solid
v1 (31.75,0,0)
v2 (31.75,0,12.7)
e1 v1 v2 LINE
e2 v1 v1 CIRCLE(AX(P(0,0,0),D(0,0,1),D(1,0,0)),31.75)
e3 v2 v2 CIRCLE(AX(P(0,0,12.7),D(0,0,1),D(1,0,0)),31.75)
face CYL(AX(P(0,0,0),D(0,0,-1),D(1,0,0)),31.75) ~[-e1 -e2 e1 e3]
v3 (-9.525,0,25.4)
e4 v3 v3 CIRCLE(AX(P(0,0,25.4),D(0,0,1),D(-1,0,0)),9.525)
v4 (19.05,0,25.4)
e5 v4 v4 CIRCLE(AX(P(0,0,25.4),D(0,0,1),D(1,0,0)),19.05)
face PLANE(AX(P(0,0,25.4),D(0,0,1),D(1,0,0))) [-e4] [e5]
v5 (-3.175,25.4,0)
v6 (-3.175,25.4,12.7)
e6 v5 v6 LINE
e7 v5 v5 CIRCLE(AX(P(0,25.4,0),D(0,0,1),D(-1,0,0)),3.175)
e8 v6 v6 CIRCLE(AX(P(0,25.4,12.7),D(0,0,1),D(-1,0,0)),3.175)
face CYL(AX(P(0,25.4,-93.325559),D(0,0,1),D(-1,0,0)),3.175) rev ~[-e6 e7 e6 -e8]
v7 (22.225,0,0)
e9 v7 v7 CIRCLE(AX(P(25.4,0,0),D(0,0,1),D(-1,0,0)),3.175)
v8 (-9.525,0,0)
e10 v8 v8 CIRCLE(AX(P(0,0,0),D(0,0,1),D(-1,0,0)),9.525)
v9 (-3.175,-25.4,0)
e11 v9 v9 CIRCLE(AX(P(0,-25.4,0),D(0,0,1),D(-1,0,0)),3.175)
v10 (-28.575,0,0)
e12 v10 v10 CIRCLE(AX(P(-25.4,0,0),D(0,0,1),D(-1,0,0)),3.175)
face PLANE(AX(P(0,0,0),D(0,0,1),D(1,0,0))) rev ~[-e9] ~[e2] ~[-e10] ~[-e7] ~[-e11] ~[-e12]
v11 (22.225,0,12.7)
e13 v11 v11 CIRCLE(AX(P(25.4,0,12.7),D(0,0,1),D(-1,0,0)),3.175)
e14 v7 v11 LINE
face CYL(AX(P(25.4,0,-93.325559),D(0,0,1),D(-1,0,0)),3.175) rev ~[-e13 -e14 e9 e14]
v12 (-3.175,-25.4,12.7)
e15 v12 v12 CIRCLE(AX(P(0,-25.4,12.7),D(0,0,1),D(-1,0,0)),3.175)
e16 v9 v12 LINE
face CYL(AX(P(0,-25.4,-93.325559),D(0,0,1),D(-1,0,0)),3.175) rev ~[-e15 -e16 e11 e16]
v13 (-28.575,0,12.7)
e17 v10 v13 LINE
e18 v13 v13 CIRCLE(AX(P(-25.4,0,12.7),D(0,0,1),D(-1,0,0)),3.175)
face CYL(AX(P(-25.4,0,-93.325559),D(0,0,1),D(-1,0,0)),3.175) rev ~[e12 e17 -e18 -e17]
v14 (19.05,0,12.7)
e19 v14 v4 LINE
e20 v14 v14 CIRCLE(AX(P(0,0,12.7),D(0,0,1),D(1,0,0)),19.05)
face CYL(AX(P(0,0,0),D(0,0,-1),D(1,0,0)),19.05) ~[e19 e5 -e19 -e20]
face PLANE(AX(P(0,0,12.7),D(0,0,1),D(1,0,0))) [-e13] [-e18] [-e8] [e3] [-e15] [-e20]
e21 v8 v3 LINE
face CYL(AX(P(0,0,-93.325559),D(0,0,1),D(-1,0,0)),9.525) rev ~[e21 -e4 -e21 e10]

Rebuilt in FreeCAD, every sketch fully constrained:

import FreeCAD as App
import Part
import Sketcher
Q = App.Units.Quantity

doc = App.newDocument("Part")
body = doc.addObject("PartDesign::Body", "Body")

sketch1 = body.newObject("Sketcher::SketchObject", "Sketch")
sketch1.AttachmentSupport = (doc.getObject("XY_Plane"), [""])
sketch1.MapMode = "FlatFace"
sketch1.addGeometry(Part.Circle(App.Vector(0, 0, 0), App.Vector(0, 0, 1), 19), False)
sketch1.addConstraint([
    Sketcher.Constraint("Coincident", 0, 3, -1, 1),
    Sketcher.Constraint("Diameter", 0, Q("1.5 in")),
])
pad1 = body.newObject("PartDesign::Pad", "Pad")
pad1.Profile = sketch1
pad1.Length = Q("1 in")

sketch2 = body.newObject("Sketcher::SketchObject", "Sketch001")
sketch2.AttachmentSupport = (doc.getObject("XY_Plane"), [""])
sketch2.MapMode = "FlatFace"
sketch2.addGeometry([
    Part.Circle(App.Vector(0, 0, 0), App.Vector(0, 0, 1), 25),
    Part.Circle(App.Vector(0, 0, 0), App.Vector(0, 0, 1), 19),
], False)
sketch2.addConstraint([
    Sketcher.Constraint("Coincident", 0, 3, -1, 1),
    Sketcher.Constraint("Coincident", 1, 3, -1, 1),
    Sketcher.Constraint("Diameter", 0, Q("2 in")),
    Sketcher.Constraint("Diameter", 1, Q("1.5 in")),
])
pad2 = body.newObject("PartDesign::Pad", "Pad001")
pad2.Profile = sketch2
pad2.Length = Q("0.5 in")

sketch3 = body.newObject("Sketcher::SketchObject", "Sketch002")
sketch3.AttachmentSupport = (doc.getObject("XY_Plane"), [""])
sketch3.MapMode = "FlatFace"
sketch3.addGeometry([
    Part.Circle(App.Vector(0, 0, 0), App.Vector(0, 0, 1), 32),
    Part.Circle(App.Vector(0, 0, 0), App.Vector(0, 0, 1), 25),
], False)
sketch3.addConstraint([
    Sketcher.Constraint("Coincident", 0, 3, -1, 1),
    Sketcher.Constraint("Coincident", 1, 3, -1, 1),
    Sketcher.Constraint("Diameter", 1, Q("2 in")),
    Sketcher.Constraint("Diameter", 0, Q("2.5 in")),
])
pad3 = body.newObject("PartDesign::Pad", "Pad002")
pad3.Profile = sketch3
pad3.Length = Q("0.5 in")

sketch4 = body.newObject("Sketcher::SketchObject", "Sketch003")
sketch4.AttachmentSupport = (doc.getObject("XY_Plane"), [""])
sketch4.MapMode = "FlatFace"
sketch4.addGeometry(Part.Circle(App.Vector(0, -25.4, 0), App.Vector(0, 0, 1), 3.2), False)
sketch4.addConstraint([
    Sketcher.Constraint("PointOnObject", 0, 3, -2),
    Sketcher.Constraint("Diameter", 0, Q("0.25 in")),
    Sketcher.Constraint("DistanceY", 0, 3, -1, 1, Q("1 in")),
])
doc.recompute()
hole = body.newObject("PartDesign::Hole", "Hole")
hole.Profile = sketch4
hole.ThreadType = "None"
hole.Diameter = Q("0.25 in")
hole.DepthType = "ThroughAll"
hole.Reversed = True

sketch5 = body.newObject("Sketcher::SketchObject", "Sketch004")
sketch5.AttachmentSupport = (doc.getObject("XY_Plane"), [""])
sketch5.MapMode = "FlatFace"
sketch5.addGeometry([
    Part.Circle(App.Vector(-25.4, 0, 0), App.Vector(0, 0, 1), 3.2),
    Part.Circle(App.Vector(25.4, 0, 0), App.Vector(0, 0, 1), 3.2),
    Part.Circle(App.Vector(0, 25.4, 0), App.Vector(0, 0, 1), 3.2),
], False)
sketch5.addConstraint([
    Sketcher.Constraint("Equal", 0, 1),
    Sketcher.Constraint("Equal", 1, 2),
    Sketcher.Constraint("Symmetric", 0, 3, 1, 3, -1, 1),
    Sketcher.Constraint("PointOnObject", 0, 3, -1),
    Sketcher.Constraint("PointOnObject", 2, 3, -2),
    Sketcher.Constraint("Diameter", 0, Q("0.25 in")),
    Sketcher.Constraint("DistanceX", 0, 3, -1, 1, Q("1 in")),
    Sketcher.Constraint("DistanceY", -1, 1, 2, 3, Q("1 in")),
])
doc.recompute()
hole2 = body.newObject("PartDesign::Hole", "Hole001")
hole2.Profile = sketch5
hole2.ThreadType = "None"
hole2.Diameter = Q("0.25 in")
hole2.DepthType = "ThroughAll"
hole2.Reversed = True

sketch6 = body.newObject("Sketcher::SketchObject", "Sketch005")
sketch6.AttachmentSupport = (doc.getObject("XY_Plane"), [""])
sketch6.MapMode = "FlatFace"
sketch6.addGeometry(Part.Circle(App.Vector(0, 0, 0), App.Vector(0, 0, 1), 10), False)
sketch6.addConstraint([
    Sketcher.Constraint("Coincident", 0, 3, -1, 1),
    Sketcher.Constraint("Diameter", 0, Q("0.75 in")),
])
doc.recompute()
hole3 = body.newObject("PartDesign::Hole", "Hole002")
hole3.Profile = sketch6
hole3.ThreadType = "None"
hole3.Diameter = Q("0.75 in")
hole3.DepthType = "ThroughAll"
hole3.Reversed = True

doc.recompute()
